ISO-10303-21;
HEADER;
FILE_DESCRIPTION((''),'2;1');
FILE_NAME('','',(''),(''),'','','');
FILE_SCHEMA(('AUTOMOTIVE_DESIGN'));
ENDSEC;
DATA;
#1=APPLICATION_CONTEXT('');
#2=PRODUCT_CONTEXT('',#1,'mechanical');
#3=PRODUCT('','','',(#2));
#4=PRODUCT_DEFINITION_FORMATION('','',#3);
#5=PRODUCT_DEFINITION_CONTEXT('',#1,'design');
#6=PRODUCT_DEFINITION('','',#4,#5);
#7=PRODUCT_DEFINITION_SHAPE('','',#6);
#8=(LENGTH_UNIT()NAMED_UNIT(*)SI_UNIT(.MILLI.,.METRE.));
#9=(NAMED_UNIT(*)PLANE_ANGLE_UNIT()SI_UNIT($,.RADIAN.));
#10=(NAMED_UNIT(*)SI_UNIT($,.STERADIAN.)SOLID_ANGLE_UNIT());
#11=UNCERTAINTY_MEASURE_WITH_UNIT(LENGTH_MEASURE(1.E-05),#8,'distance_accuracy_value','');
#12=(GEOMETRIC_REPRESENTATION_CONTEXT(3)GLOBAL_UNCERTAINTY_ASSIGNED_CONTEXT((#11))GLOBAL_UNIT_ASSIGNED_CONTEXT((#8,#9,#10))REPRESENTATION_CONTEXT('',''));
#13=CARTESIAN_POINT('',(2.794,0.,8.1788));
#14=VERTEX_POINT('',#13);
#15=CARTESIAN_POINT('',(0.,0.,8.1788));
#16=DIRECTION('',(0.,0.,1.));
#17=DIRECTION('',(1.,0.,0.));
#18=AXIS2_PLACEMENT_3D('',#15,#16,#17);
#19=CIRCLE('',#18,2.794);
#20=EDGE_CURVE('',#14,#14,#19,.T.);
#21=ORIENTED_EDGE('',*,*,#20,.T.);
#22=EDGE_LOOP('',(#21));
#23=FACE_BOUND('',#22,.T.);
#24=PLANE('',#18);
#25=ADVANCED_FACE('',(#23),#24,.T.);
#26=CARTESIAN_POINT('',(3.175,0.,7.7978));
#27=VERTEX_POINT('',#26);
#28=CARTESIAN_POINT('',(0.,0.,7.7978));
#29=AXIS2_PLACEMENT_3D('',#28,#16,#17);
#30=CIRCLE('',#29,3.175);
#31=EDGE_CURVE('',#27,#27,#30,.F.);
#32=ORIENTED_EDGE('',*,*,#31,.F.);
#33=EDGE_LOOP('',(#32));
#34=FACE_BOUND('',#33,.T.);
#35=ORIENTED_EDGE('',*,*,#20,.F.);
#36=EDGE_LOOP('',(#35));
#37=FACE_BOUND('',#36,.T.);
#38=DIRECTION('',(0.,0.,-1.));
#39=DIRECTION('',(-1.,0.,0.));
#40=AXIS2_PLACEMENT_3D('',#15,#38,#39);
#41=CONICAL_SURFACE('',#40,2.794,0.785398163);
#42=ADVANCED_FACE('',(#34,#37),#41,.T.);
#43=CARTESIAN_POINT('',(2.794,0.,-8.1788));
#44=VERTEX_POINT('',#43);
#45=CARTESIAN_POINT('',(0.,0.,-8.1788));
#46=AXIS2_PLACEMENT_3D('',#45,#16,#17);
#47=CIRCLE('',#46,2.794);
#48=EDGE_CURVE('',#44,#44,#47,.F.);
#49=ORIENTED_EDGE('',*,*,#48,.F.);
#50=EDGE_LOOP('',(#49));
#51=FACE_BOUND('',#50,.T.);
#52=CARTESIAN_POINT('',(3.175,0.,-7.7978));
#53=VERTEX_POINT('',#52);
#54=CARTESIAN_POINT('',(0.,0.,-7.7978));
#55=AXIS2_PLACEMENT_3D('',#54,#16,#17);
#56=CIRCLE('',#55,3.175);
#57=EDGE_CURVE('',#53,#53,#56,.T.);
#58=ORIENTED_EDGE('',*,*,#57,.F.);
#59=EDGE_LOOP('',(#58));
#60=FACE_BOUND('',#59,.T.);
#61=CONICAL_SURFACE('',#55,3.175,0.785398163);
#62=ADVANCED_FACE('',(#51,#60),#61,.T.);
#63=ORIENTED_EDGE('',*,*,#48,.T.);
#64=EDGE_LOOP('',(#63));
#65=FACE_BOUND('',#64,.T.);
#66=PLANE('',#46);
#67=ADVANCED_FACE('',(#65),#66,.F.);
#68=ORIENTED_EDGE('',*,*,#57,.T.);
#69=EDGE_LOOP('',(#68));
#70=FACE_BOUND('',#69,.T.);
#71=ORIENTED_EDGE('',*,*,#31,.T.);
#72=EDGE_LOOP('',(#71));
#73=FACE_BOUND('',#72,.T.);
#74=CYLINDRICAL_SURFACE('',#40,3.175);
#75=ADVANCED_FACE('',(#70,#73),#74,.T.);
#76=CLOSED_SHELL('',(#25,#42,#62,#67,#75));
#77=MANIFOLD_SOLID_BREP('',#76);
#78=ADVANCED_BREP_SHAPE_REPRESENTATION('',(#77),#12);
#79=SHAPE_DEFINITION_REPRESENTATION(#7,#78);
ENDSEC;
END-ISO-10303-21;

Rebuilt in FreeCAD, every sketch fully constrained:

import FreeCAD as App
import Part
import Sketcher
from FreeCAD import Vector
Q = App.Units.Quantity


def edges_at(feature, points):
    """Names of the edges that pass closest to the given points."""
    edges = feature.Shape.Edges
    near = lambda p: min(range(len(edges)), key=lambda i: edges[i].distToShape(Part.Vertex(*p))[0])
    return sorted({f"Edge{near(p) + 1}" for p in points})

doc = App.newDocument("Part")
body = doc.addObject("PartDesign::Body", "Body")

# Sketch on XY plane
sketch1 = doc.addObject("Sketcher::SketchObject", "Sketch")
body.addObject(sketch1)
sketch1.AttachmentSupport = (doc.XY_Plane, [""])
sketch1.MapMode = "FlatFace"
sketch1.addGeometry(Part.Circle(Vector(0, 0, 0), Vector(0, 0, 1), 3.175), False)
sketch1.addConstraint([
    Sketcher.Constraint("Coincident", 0, 3, -1, 1),
    Sketcher.Constraint("Diameter", 0, Q("0.25 in")),
])
pad1 = doc.addObject("PartDesign::Pad", "Pad")
body.addObject(pad1)
pad1.Profile = sketch1
pad1.Length = Q("0.644 in")
pad1.Midplane = True
doc.recompute()

chamfer = doc.addObject("PartDesign::Chamfer", "Chamfer")
body.addObject(chamfer)
chamfer.Base = (pad1, edges_at(pad1, [(-3.175, 0, -8.179), (-3.175, 0, 8.179)]))
chamfer.Size = Q("0.015 in")

doc.recompute()
